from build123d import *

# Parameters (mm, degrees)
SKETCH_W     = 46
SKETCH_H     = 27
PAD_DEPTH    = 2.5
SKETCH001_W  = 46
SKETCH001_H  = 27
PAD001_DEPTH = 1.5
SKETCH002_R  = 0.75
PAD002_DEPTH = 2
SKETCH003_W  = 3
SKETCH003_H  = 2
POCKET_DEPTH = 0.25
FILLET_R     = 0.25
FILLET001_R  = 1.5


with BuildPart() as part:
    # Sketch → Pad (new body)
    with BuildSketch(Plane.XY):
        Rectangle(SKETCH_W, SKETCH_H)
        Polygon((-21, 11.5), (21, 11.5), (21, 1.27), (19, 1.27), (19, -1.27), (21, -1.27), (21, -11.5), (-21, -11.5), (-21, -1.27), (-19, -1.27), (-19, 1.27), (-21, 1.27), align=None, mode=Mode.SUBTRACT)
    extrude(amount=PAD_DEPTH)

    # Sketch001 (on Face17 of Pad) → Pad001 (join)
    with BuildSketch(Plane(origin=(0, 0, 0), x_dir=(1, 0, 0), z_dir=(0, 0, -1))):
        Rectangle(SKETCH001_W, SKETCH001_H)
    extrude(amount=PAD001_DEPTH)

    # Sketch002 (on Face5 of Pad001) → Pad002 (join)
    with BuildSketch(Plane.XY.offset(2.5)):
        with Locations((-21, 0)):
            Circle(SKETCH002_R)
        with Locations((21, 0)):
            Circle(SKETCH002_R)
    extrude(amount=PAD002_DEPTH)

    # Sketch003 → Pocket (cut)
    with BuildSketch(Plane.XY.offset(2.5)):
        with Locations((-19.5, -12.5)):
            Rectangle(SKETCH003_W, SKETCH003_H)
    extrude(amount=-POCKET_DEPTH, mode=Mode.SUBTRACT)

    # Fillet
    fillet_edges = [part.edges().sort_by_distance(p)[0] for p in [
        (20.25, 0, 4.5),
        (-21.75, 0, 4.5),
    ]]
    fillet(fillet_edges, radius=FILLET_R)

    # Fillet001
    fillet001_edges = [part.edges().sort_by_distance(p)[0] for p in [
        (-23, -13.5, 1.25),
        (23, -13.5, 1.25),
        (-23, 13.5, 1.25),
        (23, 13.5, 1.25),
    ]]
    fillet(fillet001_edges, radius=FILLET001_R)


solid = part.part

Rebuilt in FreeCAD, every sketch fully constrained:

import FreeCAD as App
import Part
import Sketcher

V = App.Vector


def edges_at(feature, points):
    """Names of the edges that pass closest to the given points."""
    edges = feature.Shape.Edges
    near = lambda p: min(range(len(edges)), key=lambda i: edges[i].distToShape(Part.Vertex(*p))[0])
    return sorted({f"Edge{near(p) + 1}" for p in points})


def add_polygon(sketch, points):
    """Adds a closed chain of lines whose ends are joined by coincident constraints."""
    first, n = sketch.GeometryCount, len(points)
    for a, b in zip(points, points[1:] + points[:1]):
        sketch.addGeometry(Part.LineSegment(App.Vector(*a, 0), App.Vector(*b, 0)), False)
    for i in range(n):
        sketch.addConstraint(Sketcher.Constraint("Coincident", first + i, 2, first + (i + 1) % n, 1))

doc = App.newDocument("Part")
params = doc.addObject("Spreadsheet::Sheet", "Params")
for row, (alias, value) in enumerate([
    ("sketch1_width", "46 mm"),
    ("sketch1_width2", "42 mm"),
    ("sketch1_width3", "2 mm"),
    ("sketch1_height", "27 mm"),
    ("sketch1_height2", "10.23 mm"),
    ("pad1_length", "2.5 mm"),
    ("sketch2_width", "46 mm"),
    ("sketch2_height", "27 mm"),
    ("pad2_length", "1.5 mm"),
    ("sketch3_diameter", "1.5 mm"),
    ("pad3_length", "2 mm"),
    ("sketch4_width", "3 mm"),
    ("sketch4_height", "2 mm"),
    ("pocket1_length", "0.25 mm"),
    ("fillet_radius", "0.25 mm"),
    ("fillet2_radius", "1.5 mm"),
], start=1):
    params.set(f"A{row}", alias)
    params.set(f"B{row}", "=" + value)
    params.setAlias(f"B{row}", alias)

body = doc.addObject("PartDesign::Body", "Body")

# Sketch on XY plane
sketch1 = body.newObject("Sketcher::SketchObject", "Sketch")
sketch1.AttachmentSupport = (doc.getObject("XY_Plane"), [""])
sketch1.MapMode = "FlatFace"
add_polygon(sketch1, [(-23, 13.5), (-23, -13.5), (23, -13.5), (23, 13.5)])  # lines 0-3
add_polygon(sketch1, [(-21, 1.3), (-21, 11.5), (21, 11.5), (21, 1.3), (19, 1.3), (19, -1.3), (21, -1.3), (21, -11.5), (-21, -11.5), (-21, -1.3), (-19, -1.3), (-19, 1.3)])  # lines 4-15
sketch1.addConstraint([
    Sketcher.Constraint("Vertical", 0),
    Sketcher.Constraint("Horizontal", 1),
    Sketcher.Constraint("Vertical", 2),
    Sketcher.Constraint("Horizontal", 3),
    Sketcher.Constraint("Vertical", 4),
    Sketcher.Constraint("Horizontal", 5),
    Sketcher.Constraint("Vertical", 6),
    Sketcher.Constraint("Horizontal", 7),
    Sketcher.Constraint("Vertical", 8),
    Sketcher.Constraint("Horizontal", 9),
    Sketcher.Constraint("Vertical", 10),
    Sketcher.Constraint("Horizontal", 11),
    Sketcher.Constraint("Vertical", 12),
    Sketcher.Constraint("Horizontal", 13),
    Sketcher.Constraint("Vertical", 14),
    Sketcher.Constraint("Horizontal", 15),
    Sketcher.Constraint("Symmetric", 0, 2, 2, 2, -1, 1),
    Sketcher.Constraint("Symmetric", 4, 2, 10, 2, -1, 1),
    Sketcher.Constraint("Symmetric", 6, 2, 12, 2, -1, 1),
    Sketcher.Constraint("Symmetric", 8, 2, 14, 2, -1, 1),
    Sketcher.Constraint("Symmetric", 9, 2, 12, 2, -2),
    Sketcher.Constraint("DistanceX", 1, 1, 1, 2, 46.0),
    Sketcher.Constraint("DistanceX", 5, 1, 5, 2, 42.0),
    Sketcher.Constraint("DistanceX", 7, 2, 7, 1, 2.0),
    Sketcher.Constraint("DistanceY", 0, 2, 0, 1, 27.0),
    Sketcher.Constraint("DistanceY", 4, 2, 3, 2, 2.0),
    Sketcher.Constraint("DistanceY", 4, 1, 4, 2, 10.23),
])
sketch1.setExpression("Constraints[37]", "Params.sketch1_width")
sketch1.setExpression("Constraints[38]", "Params.sketch1_width2")
sketch1.setExpression("Constraints[39]", "Params.sketch1_width3")
sketch1.setExpression("Constraints[40]", "Params.sketch1_height")
sketch1.setExpression("Constraints[42]", "Params.sketch1_height2")
pad1 = body.newObject("PartDesign::Pad", "Pad")
pad1.Profile = sketch1
pad1.setExpression("Length", "Params.pad1_length")

# Sketch on XY plane
sketch2 = body.newObject("Sketcher::SketchObject", "Sketch001")
sketch2.AttachmentSupport = (doc.getObject("XY_Plane"), [""])
sketch2.MapMode = "FlatFace"
add_polygon(sketch2, [(-23, -14), (-23, 14), (23, 14), (23, -14)])  # lines 0-3
sketch2.addConstraint([
    Sketcher.Constraint("Vertical", 0),
    Sketcher.Constraint("Horizontal", 1),
    Sketcher.Constraint("Vertical", 2),
    Sketcher.Constraint("Horizontal", 3),
    Sketcher.Constraint("Symmetric", 0, 2, 2, 2, -1, 1),
    Sketcher.Constraint("DistanceX", 1, 1, 1, 2, 46.0),
    Sketcher.Constraint("DistanceY", 0, 1, 0, 2, 27.0),
])
sketch2.setExpression("Constraints[9]", "Params.sketch2_width")
sketch2.setExpression("Constraints[10]", "Params.sketch2_height")
pad2 = body.newObject("PartDesign::Pad", "Pad001")
pad2.Profile = sketch2
pad2.setExpression("Length", "Params.pad2_length")
pad2.Reversed = True

# Sketch on XY plane
sketch3 = body.newObject("Sketcher::SketchObject", "Sketch002")
sketch3.AttachmentSupport = (doc.getObject("XY_Plane"), [""])
sketch3.MapMode = "FlatFace"
sketch3.AttachmentOffset = App.Placement(V(0, 0, 2.5), App.Rotation())
sketch3.addGeometry([
    Part.Circle(V(-21, 0, 0), V(0, 0, 1), 0.8),
    Part.Circle(V(21, 0, 0), V(0, 0, 1), 0.8),
], False)
sketch3.addConstraint([
    Sketcher.Constraint("Equal", 0, 1),
    Sketcher.Constraint("Symmetric", 0, 3, 1, 3, -1, 1),
    Sketcher.Constraint("PointOnObject", 0, 3, -1),
    Sketcher.Constraint("Diameter", 0, 1.5),
    Sketcher.Constraint("DistanceX", 0, 3, -1, 1, 21.0),
])
sketch3.setExpression("Constraints[3]", "Params.sketch3_diameter")
pad3 = body.newObject("PartDesign::Pad", "Pad002")
pad3.Profile = sketch3
pad3.setExpression("Length", "Params.pad3_length")

# Sketch on XY plane
sketch4 = body.newObject("Sketcher::SketchObject", "Sketch003")
sketch4.AttachmentSupport = (doc.getObject("XY_Plane"), [""])
sketch4.MapMode = "FlatFace"
sketch4.AttachmentOffset = App.Placement(V(0, 0, 2.5), App.Rotation())
add_polygon(sketch4, [(-21, -11.5), (-21, -13.5), (-18, -13.5), (-18, -11.5)])  # lines 0-3
sketch4.addConstraint([
    Sketcher.Constraint("Vertical", 0),
    Sketcher.Constraint("Horizontal", 1),
    Sketcher.Constraint("Vertical", 2),
    Sketcher.Constraint("Horizontal", 3),
    Sketcher.Constraint("DistanceX", 1, 1, 1, 2, 3.0),
    Sketcher.Constraint("DistanceY", 0, 2, 0, 1, 2.0),
    Sketcher.Constraint("DistanceX", 0, 2, -1, 1, 21.0),
    Sketcher.Constraint("DistanceY", 0, 2, -1, 1, 13.5),
])
sketch4.setExpression("Constraints[8]", "Params.sketch4_width")
sketch4.setExpression("Constraints[9]", "Params.sketch4_height")
pocket1 = body.newObject("PartDesign::Pocket", "Pocket")
pocket1.Profile = sketch4
pocket1.setExpression("Length", "Params.pocket1_length")
doc.recompute()

fillet = body.newObject("PartDesign::Fillet", "Fillet")
fillet.Base = (pocket1, edges_at(pocket1, [(20.25, 0, 4.5), (-21.75, 0, 4.5)]))
fillet.setExpression("Radius", "Params.fillet_radius")
doc.recompute()

fillet2 = body.newObject("PartDesign::Fillet", "Fillet001")
fillet2.Base = (fillet, edges_at(fillet, [
    (-23, -13.5, 0.5),
    (23, -13.5, 0.5),
    (-23, 13.5, 0.5),
    (23, 13.5, 0.5),
]))
fillet2.setExpression("Radius", "Params.fillet2_radius")

doc.recompute()
